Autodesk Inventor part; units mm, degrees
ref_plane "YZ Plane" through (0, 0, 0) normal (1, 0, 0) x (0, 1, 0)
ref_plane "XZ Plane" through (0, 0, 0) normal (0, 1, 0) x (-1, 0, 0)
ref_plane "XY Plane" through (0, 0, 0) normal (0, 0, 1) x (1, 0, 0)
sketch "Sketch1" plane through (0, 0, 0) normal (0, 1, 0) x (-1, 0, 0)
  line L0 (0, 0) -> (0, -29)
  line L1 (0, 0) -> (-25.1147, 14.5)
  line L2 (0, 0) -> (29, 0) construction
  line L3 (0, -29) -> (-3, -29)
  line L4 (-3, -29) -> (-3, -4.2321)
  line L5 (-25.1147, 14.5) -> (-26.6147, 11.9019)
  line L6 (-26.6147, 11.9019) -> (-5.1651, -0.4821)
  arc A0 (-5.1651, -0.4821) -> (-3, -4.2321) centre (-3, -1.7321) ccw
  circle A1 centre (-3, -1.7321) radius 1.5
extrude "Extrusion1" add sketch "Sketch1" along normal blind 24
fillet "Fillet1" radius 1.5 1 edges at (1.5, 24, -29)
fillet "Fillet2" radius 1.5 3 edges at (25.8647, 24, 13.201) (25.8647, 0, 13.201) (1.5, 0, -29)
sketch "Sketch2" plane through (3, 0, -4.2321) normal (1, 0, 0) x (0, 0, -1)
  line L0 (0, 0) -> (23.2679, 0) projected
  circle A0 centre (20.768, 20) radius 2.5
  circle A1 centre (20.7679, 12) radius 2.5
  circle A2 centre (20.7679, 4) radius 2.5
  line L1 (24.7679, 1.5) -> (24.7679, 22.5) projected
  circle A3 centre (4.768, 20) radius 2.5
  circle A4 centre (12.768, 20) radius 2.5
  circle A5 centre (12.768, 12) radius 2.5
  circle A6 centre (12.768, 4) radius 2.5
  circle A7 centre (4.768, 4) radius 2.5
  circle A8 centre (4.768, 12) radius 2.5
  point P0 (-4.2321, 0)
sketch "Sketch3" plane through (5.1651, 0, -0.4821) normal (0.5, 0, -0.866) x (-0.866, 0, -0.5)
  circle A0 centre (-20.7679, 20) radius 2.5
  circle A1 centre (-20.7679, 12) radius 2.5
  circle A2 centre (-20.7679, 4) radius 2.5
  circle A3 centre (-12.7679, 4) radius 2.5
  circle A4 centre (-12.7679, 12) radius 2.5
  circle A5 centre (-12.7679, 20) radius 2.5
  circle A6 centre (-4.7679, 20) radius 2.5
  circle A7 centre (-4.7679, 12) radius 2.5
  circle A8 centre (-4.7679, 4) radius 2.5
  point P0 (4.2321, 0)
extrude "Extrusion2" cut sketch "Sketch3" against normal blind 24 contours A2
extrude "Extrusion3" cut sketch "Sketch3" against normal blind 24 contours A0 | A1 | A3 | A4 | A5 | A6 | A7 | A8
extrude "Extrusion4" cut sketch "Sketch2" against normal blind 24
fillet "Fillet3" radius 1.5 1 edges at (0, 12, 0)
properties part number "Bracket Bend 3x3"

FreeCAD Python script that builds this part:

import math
import FreeCAD as App
import Part
import Sketcher
Q = App.Units.Quantity


def edges_at(feature, points):
    """Names of the edges that pass closest to the given points."""
    edges = feature.Shape.Edges
    near = lambda p: min(range(len(edges)), key=lambda i: edges[i].distToShape(Part.Vertex(*p))[0])
    return sorted({f"Edge{near(p) + 1}" for p in points})

doc = App.newDocument("Part")
body = doc.addObject("PartDesign::Body", "Body")

# Sketch on XZ plane
sketch1 = body.newObject("Sketcher::SketchObject", "Sketch")
sketch1.AttachmentSupport = (doc.getObject("XZ_Plane"), [""])
sketch1.MapMode = "FlatFace"
sketch1.addGeometry(Part.LineSegment(App.Vector(0, -29, 0), App.Vector(0, 0, 0)), False)
sketch1.addGeometry(Part.LineSegment(App.Vector(0, 0, 0), App.Vector(25.1, 14.5, 0)), False)
sketch1.addGeometry(Part.LineSegment(App.Vector(25.1, 14.5, 0), App.Vector(26.6, 11.9, 0)), False)
sketch1.addGeometry(Part.LineSegment(App.Vector(26.6, 11.9, 0), App.Vector(5.2, -0.5, 0)), False)
sketch1.addGeometry(Part.ArcOfCircle(Part.Circle(App.Vector(3, -1.7, 0), App.Vector(0, 0, 1), 2.5), math.radians(-90), math.radians(30)), False)
sketch1.addGeometry(Part.LineSegment(App.Vector(3, -4.2, 0), App.Vector(3, -29, 0)), False)
sketch1.addGeometry(Part.LineSegment(App.Vector(3, -29, 0), App.Vector(0, -29, 0)), False)
sketch1.addGeometry(Part.Circle(App.Vector(3, -1.7, 0), App.Vector(0, 0, 1), 1.5), False)
sketch1.addConstraint(Sketcher.Constraint("Coincident", 0, 2, 1, 1))
sketch1.addConstraint(Sketcher.Constraint("Coincident", 1, 2, 2, 1))
sketch1.addConstraint(Sketcher.Constraint("Coincident", 2, 2, 3, 1))
sketch1.addConstraint(Sketcher.Constraint("Coincident", 3, 2, 4, 2))
sketch1.addConstraint(Sketcher.Constraint("Coincident", 4, 1, 5, 1))
sketch1.addConstraint(Sketcher.Constraint("Coincident", 5, 2, 6, 1))
sketch1.addConstraint(Sketcher.Constraint("Coincident", 6, 2, 0, 1))
sketch1.addConstraint(Sketcher.Constraint("Vertical", 0))
sketch1.addConstraint(Sketcher.Constraint("Vertical", 5))
sketch1.addConstraint(Sketcher.Constraint("Horizontal", 6))
sketch1.addConstraint(Sketcher.Constraint("Coincident", 0, 2, -1, 1))
sketch1.addConstraint(Sketcher.Constraint("Coincident", 7, 3, 4, 3))
sketch1.addConstraint(Sketcher.Constraint("Perpendicular", 1, 2))
sketch1.addConstraint(Sketcher.Constraint("Perpendicular", 2, 3))
sketch1.addConstraint(Sketcher.Constraint("Vertical", 7, 3, 4, 1))
sketch1.addConstraint(Sketcher.Constraint("Diameter", 7, Q("3 mm")))
sketch1.addConstraint(Sketcher.Constraint("Radius", 4, Q("2.5 mm")))
sketch1.addConstraint(Sketcher.Constraint("DistanceX", 6, 2, 6, 1, Q("3 mm")))
sketch1.addConstraint(Sketcher.Constraint("DistanceY", 0, 1, 0, 2, Q("29 mm")))
sketch1.addConstraint(Sketcher.Constraint("Angle", 1, Q("30 deg")))
sketch1.addConstraint(Sketcher.Constraint("Distance", 1, Q("29 mm")))
sketch1.addConstraint(Sketcher.Constraint("Distance", 2, Q("3 mm")))
sketch1.addConstraint(Sketcher.Constraint("DistanceY", 5, 2, 5, 1, Q("24.768 mm")))
pad1 = body.newObject("PartDesign::Pad", "Pad")
pad1.Profile = sketch1
pad1.Length = 24
pad1.Reversed = True
doc.recompute()

fillet = body.newObject("PartDesign::Fillet", "Fillet")
fillet.Base = (pad1, edges_at(pad1, [(1.5, 24, -29)]))
fillet.Radius = 1.5
doc.recompute()

fillet2 = body.newObject("PartDesign::Fillet", "Fillet001")
fillet2.Base = (fillet, edges_at(fillet, [(25.865, 24, 13.201), (25.865, 0, 13.201), (1.5, 0, -29)]))
fillet2.Radius = 1.5

# Sketch on an angled plane
sketch2 = body.newObject("Sketcher::SketchObject", "Sketch001")
sketch2.Placement = App.Placement(App.Vector(5.1651, 0, -0.4821), App.Rotation(App.Vector(-0.866025404, 0, -0.5), App.Vector(0, 1, 0), App.Vector(0.5, 0, -0.866025404), "ZXY"))
sketch2.addGeometry(Part.Circle(App.Vector(-20.8, 4, 0), App.Vector(0, 0, 1), 2.5), False)
sketch2.addConstraint(Sketcher.Constraint("Diameter", 0, Q("5 mm")))
sketch2.addConstraint(Sketcher.Constraint("DistanceY", -1, 1, 0, 3, Q("4 mm")))
sketch2.addConstraint(Sketcher.Constraint("DistanceX", 0, 3, -1, 1, Q("20.768 mm")))
pocket1 = body.newObject("PartDesign::Pocket", "Pocket")
pocket1.Profile = sketch2
pocket1.Length = 24

# Sketch on an angled plane
sketch3 = body.newObject("Sketcher::SketchObject", "Sketch002")
sketch3.Placement = App.Placement(App.Vector(5.1651, 0, -0.4821), App.Rotation(App.Vector(-0.866025404, 0, -0.5), App.Vector(0, 1, 0), App.Vector(0.5, 0, -0.866025404), "ZXY"))
sketch3.addGeometry(Part.Circle(App.Vector(-20.8, 20, 0), App.Vector(0, 0, 1), 2.5), False)
sketch3.addGeometry(Part.Circle(App.Vector(-20.8, 12, 0), App.Vector(0, 0, 1), 2.5), False)
sketch3.addGeometry(Part.Circle(App.Vector(-12.8, 4, 0), App.Vector(0, 0, 1), 2.5), False)
sketch3.addGeometry(Part.Circle(App.Vector(-12.8, 12, 0), App.Vector(0, 0, 1), 2.5), False)
sketch3.addGeometry(Part.Circle(App.Vector(-12.8, 20, 0), App.Vector(0, 0, 1), 2.5), False)
sketch3.addGeometry(Part.Circle(App.Vector(-4.8, 20, 0), App.Vector(0, 0, 1), 2.5), False)
sketch3.addGeometry(Part.Circle(App.Vector(-4.8, 12, 0), App.Vector(0, 0, 1), 2.5), False)
sketch3.addGeometry(Part.Circle(App.Vector(-4.8, 4, 0), App.Vector(0, 0, 1), 2.5), False)
sketch3.addConstraint(Sketcher.Constraint("Equal", 0, 1))
sketch3.addConstraint(Sketcher.Constraint("Equal", 1, 2))
sketch3.addConstraint(Sketcher.Constraint("Equal", 2, 3))
sketch3.addConstraint(Sketcher.Constraint("Equal", 3, 4))
sketch3.addConstraint(Sketcher.Constraint("Equal", 4, 5))
sketch3.addConstraint(Sketcher.Constraint("Equal", 5, 6))
sketch3.addConstraint(Sketcher.Constraint("Equal", 6, 7))
sketch3.addConstraint(Sketcher.Constraint("Horizontal", 1, 3, 3, 3))
sketch3.addConstraint(Sketcher.Constraint("Horizontal", 0, 3, 4, 3))
sketch3.addConstraint(Sketcher.Constraint("Horizontal", 4, 3, 5, 3))
sketch3.addConstraint(Sketcher.Constraint("Horizontal", 3, 3, 6, 3))
sketch3.addConstraint(Sketcher.Constraint("Horizontal", 2, 3, 7, 3))
sketch3.addConstraint(Sketcher.Constraint("Vertical", 0, 3, 1, 3))
sketch3.addConstraint(Sketcher.Constraint("Vertical", 2, 3, 3, 3))
sketch3.addConstraint(Sketcher.Constraint("Vertical", 3, 3, 4, 3))
sketch3.addConstraint(Sketcher.Constraint("Vertical", 5, 3, 6, 3))
sketch3.addConstraint(Sketcher.Constraint("Vertical", 6, 3, 7, 3))
sketch3.addConstraint(Sketcher.Constraint("Diameter", 0, Q("5 mm")))
sketch3.addConstraint(Sketcher.Constraint("DistanceY", -1, 1, 0, 3, Q("20 mm")))
sketch3.addConstraint(Sketcher.Constraint("DistanceY", -1, 1, 1, 3, Q("12 mm")))
sketch3.addConstraint(Sketcher.Constraint("DistanceY", -1, 1, 2, 3, Q("4 mm")))
sketch3.addConstraint(Sketcher.Constraint("DistanceX", 1, 3, 2, 3, Q("8 mm")))
sketch3.addConstraint(Sketcher.Constraint("DistanceX", 4, 3, 5, 3, Q("8 mm")))
sketch3.addConstraint(Sketcher.Constraint("DistanceX", 0, 3, -1, 1, Q("20.768 mm")))
pocket2 = body.newObject("PartDesign::Pocket", "Pocket001")
pocket2.Profile = sketch3
pocket2.Length = 24

# Sketch on YZ plane
sketch4 = body.newObject("Sketcher::SketchObject", "Sketch003")
sketch4.AttachmentSupport = (doc.getObject("YZ_Plane"), [""])
sketch4.MapMode = "FlatFace"
sketch4.AttachmentOffset = App.Placement(App.Vector(0, 0, 3), App.Rotation())
sketch4.addGeometry(Part.Circle(App.Vector(20, -25, 0), App.Vector(0, 0, 1), 2.5), False)
sketch4.addGeometry(Part.Circle(App.Vector(12, -25, 0), App.Vector(0, 0, 1), 2.5), False)
sketch4.addGeometry(Part.Circle(App.Vector(4, -25, 0), App.Vector(0, 0, 1), 2.5), False)
sketch4.addGeometry(Part.Circle(App.Vector(20, -9, 0), App.Vector(0, 0, 1), 2.5), False)
sketch4.addGeometry(Part.Circle(App.Vector(20, -17, 0), App.Vector(0, 0, 1), 2.5), False)
sketch4.addGeometry(Part.Circle(App.Vector(12, -17, 0), App.Vector(0, 0, 1), 2.5), False)
sketch4.addGeometry(Part.Circle(App.Vector(4, -17, 0), App.Vector(0, 0, 1), 2.5), False)
sketch4.addGeometry(Part.Circle(App.Vector(4, -9, 0), App.Vector(0, 0, 1), 2.5), False)
sketch4.addGeometry(Part.Circle(App.Vector(12, -9, 0), App.Vector(0, 0, 1), 2.5), False)
sketch4.addConstraint(Sketcher.Constraint("Equal", 0, 1))
sketch4.addConstraint(Sketcher.Constraint("Equal", 1, 2))
sketch4.addConstraint(Sketcher.Constraint("Equal", 2, 3))
sketch4.addConstraint(Sketcher.Constraint("Equal", 3, 4))
sketch4.addConstraint(Sketcher.Constraint("Equal", 4, 5))
sketch4.addConstraint(Sketcher.Constraint("Equal", 5, 6))
sketch4.addConstraint(Sketcher.Constraint("Equal", 6, 7))
sketch4.addConstraint(Sketcher.Constraint("Equal", 7, 8))
sketch4.addConstraint(Sketcher.Constraint("Horizontal", 0, 3, 1, 3))
sketch4.addConstraint(Sketcher.Constraint("Horizontal", 1, 3, 2, 3))
sketch4.addConstraint(Sketcher.Constraint("Horizontal", 4, 3, 5, 3))
sketch4.addConstraint(Sketcher.Constraint("Horizontal", 5, 3, 6, 3))
sketch4.addConstraint(Sketcher.Constraint("Horizontal", 3, 3, 7, 3))
sketch4.addConstraint(Sketcher.Constraint("Horizontal", 7, 3, 8, 3))
sketch4.addConstraint(Sketcher.Constraint("Vertical", 0, 3, 3, 3))
sketch4.addConstraint(Sketcher.Constraint("Vertical", 3, 3, 4, 3))
sketch4.addConstraint(Sketcher.Constraint("Vertical", 1, 3, 5, 3))
sketch4.addConstraint(Sketcher.Constraint("Vertical", 2, 3, 6, 3))
sketch4.addConstraint(Sketcher.Constraint("Vertical", 6, 3, 7, 3))
sketch4.addConstraint(Sketcher.Constraint("Vertical", 5, 3, 8, 3))
sketch4.addConstraint(Sketcher.Constraint("Diameter", 0, Q("5 mm")))
sketch4.addConstraint(Sketcher.Constraint("DistanceX", -1, 1, 0, 3, Q("20 mm")))
sketch4.addConstraint(Sketcher.Constraint("DistanceY", 0, 3, -1, 1, Q("25 mm")))
sketch4.addConstraint(Sketcher.Constraint("DistanceX", -1, 1, 1, 3, Q("12 mm")))
sketch4.addConstraint(Sketcher.Constraint("DistanceX", -1, 1, 2, 3, Q("4 mm")))
sketch4.addConstraint(Sketcher.Constraint("DistanceY", 3, 3, -1, 1, Q("9 mm")))
sketch4.addConstraint(Sketcher.Constraint("DistanceY", 4, 3, -1, 1, Q("17 mm")))
pocket3 = body.newObject("PartDesign::Pocket", "Pocket002")
pocket3.Profile = sketch4
pocket3.Length = 24
doc.recompute()

fillet3 = body.newObject("PartDesign::Fillet", "Fillet002")
fillet3.Base = (pocket3, edges_at(pocket3, [(0, 12, 0)]))
fillet3.Radius = 1.5

doc.recompute()
